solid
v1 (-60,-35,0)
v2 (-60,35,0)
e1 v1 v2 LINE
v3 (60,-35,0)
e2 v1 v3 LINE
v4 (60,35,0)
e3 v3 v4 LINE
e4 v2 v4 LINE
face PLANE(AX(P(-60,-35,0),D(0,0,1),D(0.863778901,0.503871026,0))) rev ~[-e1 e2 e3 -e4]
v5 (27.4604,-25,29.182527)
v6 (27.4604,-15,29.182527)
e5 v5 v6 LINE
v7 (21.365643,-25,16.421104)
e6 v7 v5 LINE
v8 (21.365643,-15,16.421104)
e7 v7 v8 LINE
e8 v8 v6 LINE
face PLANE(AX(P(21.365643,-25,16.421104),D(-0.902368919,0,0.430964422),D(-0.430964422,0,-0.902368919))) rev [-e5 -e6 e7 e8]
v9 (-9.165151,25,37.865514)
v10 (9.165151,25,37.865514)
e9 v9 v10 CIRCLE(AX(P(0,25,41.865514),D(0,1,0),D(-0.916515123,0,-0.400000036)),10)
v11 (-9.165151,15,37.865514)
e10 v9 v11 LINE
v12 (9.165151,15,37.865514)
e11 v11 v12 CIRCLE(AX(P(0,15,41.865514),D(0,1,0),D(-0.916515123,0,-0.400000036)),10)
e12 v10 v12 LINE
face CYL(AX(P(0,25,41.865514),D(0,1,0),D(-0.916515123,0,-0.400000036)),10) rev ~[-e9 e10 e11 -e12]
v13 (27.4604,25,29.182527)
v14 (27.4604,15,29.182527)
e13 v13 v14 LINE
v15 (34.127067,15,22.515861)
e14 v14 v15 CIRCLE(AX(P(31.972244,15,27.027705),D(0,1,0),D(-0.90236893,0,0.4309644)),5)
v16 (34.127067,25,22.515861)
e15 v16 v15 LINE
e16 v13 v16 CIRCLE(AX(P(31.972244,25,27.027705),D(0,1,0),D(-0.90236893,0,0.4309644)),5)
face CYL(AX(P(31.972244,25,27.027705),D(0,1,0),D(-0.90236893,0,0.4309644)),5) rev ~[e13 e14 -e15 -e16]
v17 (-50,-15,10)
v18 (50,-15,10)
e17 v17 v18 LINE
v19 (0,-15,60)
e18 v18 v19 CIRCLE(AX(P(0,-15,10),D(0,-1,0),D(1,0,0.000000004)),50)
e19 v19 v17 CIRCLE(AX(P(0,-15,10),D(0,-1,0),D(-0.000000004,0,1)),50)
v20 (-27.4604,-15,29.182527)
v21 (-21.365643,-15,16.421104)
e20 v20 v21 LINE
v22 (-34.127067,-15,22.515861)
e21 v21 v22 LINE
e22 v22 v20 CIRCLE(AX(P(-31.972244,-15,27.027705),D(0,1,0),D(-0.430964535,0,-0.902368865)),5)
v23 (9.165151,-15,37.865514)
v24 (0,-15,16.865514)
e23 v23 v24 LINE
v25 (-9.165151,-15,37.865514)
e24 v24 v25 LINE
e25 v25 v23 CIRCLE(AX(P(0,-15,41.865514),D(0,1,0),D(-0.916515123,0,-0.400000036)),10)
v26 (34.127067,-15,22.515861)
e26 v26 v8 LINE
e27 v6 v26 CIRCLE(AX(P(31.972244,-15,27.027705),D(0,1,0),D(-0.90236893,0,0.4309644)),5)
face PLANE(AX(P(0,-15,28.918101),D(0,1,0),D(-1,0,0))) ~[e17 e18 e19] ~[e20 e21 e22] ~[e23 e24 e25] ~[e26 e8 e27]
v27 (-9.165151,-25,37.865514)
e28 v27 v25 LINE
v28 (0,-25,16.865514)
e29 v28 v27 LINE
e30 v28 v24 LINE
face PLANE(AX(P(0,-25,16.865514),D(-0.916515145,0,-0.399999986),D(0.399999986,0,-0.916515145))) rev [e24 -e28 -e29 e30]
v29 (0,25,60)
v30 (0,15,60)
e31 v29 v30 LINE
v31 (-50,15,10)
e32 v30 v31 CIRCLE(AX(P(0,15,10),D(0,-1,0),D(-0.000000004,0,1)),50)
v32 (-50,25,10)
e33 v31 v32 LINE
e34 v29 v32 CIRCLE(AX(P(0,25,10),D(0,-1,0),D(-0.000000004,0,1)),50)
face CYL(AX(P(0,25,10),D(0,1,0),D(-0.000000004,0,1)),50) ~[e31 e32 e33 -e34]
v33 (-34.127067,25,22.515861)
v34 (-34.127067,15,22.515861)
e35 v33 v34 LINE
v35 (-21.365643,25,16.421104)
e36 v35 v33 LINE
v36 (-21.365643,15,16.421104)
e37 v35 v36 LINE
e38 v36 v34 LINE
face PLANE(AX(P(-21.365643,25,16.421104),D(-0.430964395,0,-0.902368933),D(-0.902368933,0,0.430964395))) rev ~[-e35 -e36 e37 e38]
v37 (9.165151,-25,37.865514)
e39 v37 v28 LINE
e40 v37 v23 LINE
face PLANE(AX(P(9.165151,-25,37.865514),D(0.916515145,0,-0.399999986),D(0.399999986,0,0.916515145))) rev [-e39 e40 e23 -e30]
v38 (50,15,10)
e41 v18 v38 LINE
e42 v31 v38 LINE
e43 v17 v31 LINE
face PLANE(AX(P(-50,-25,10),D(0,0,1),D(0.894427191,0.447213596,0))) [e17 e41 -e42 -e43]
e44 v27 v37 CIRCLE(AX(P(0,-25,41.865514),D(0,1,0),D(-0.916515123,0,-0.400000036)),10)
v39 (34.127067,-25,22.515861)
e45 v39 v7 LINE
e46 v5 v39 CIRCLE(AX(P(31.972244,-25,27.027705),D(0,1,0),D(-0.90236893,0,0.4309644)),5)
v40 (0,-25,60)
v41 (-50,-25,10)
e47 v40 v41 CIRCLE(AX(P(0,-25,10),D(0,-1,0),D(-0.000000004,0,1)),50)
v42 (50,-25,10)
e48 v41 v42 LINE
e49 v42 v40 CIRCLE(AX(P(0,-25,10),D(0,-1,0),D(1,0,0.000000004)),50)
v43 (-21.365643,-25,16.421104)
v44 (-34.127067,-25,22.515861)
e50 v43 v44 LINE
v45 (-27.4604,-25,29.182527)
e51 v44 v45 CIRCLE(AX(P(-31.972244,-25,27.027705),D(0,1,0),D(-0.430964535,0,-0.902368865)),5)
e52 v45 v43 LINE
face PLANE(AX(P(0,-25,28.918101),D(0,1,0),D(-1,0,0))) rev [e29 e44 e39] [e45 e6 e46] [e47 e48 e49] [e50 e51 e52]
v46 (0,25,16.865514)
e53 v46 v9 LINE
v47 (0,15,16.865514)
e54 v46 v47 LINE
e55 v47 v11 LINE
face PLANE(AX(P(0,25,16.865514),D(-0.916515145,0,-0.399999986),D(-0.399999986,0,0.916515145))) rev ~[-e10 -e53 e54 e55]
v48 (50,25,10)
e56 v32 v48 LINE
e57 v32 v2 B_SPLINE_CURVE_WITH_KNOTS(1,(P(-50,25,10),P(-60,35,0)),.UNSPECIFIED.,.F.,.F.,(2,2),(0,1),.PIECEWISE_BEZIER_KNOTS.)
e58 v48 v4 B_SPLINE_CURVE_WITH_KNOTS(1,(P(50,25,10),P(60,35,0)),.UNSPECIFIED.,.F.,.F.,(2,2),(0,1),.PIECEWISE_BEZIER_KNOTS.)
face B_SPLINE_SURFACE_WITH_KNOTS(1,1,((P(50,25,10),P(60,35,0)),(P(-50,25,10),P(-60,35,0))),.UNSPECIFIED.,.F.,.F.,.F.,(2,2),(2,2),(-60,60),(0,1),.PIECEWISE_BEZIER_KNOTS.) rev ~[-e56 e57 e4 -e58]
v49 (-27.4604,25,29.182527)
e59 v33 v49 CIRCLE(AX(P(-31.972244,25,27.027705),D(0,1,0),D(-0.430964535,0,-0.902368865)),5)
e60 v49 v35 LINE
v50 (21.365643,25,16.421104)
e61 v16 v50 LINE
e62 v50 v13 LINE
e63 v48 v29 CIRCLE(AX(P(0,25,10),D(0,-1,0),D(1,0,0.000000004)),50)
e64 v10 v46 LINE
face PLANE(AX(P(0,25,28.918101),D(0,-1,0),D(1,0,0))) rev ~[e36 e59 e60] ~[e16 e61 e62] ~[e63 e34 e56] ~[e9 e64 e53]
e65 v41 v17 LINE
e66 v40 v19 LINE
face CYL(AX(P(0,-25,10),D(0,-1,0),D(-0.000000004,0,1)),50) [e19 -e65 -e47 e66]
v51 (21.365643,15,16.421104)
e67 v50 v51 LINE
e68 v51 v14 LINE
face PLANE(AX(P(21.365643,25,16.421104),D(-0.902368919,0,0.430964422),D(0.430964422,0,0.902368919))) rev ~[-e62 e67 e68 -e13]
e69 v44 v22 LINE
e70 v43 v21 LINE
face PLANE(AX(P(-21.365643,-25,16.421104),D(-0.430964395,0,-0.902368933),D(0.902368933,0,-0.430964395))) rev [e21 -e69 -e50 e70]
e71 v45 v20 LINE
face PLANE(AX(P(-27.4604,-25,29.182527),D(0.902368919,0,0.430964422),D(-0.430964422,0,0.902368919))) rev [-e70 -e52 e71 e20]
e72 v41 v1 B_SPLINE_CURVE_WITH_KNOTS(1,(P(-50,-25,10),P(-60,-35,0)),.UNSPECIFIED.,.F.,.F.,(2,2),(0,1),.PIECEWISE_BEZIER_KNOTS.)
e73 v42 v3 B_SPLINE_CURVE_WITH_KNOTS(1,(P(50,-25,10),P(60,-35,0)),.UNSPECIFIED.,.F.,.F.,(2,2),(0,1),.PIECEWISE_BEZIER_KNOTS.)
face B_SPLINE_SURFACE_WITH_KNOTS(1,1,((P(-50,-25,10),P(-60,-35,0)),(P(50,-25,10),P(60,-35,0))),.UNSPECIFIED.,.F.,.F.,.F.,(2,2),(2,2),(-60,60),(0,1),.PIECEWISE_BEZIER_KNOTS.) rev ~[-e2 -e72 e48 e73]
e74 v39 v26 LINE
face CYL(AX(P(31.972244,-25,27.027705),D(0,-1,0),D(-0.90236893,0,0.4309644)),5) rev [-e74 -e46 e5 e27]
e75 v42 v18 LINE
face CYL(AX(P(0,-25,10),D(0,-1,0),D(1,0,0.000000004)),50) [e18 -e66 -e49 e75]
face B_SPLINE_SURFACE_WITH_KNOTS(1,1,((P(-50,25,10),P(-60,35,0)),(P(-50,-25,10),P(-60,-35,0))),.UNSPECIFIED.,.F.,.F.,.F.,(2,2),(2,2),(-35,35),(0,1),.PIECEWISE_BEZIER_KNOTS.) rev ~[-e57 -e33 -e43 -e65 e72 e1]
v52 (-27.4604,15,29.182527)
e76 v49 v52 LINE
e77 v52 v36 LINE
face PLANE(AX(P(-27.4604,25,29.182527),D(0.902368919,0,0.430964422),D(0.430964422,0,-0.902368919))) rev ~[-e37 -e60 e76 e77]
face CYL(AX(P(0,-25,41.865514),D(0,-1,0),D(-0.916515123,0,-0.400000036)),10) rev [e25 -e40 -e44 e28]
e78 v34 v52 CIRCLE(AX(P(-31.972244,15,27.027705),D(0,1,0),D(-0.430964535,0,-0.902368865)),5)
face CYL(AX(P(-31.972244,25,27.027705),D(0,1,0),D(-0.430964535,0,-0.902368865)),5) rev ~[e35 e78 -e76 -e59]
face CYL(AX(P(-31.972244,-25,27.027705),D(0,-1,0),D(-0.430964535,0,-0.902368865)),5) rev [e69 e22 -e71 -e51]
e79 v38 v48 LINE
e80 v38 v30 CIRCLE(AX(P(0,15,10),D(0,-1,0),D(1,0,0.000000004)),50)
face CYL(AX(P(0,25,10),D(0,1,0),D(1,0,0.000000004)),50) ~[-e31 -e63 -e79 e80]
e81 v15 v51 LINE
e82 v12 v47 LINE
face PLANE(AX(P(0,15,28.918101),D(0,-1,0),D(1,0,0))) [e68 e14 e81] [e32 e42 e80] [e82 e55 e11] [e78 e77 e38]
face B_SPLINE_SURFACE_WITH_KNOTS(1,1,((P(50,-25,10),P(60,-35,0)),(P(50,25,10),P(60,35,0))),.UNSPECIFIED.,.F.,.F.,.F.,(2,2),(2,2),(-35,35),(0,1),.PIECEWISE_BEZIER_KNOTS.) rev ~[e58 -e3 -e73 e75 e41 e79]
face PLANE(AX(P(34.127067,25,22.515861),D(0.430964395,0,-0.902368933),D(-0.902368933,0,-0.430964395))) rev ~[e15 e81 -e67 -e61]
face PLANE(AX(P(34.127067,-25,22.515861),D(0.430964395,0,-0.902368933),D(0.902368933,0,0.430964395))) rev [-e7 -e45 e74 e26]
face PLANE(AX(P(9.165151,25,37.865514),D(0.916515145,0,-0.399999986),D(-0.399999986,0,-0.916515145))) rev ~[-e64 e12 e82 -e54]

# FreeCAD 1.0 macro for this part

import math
import FreeCAD as App
import Part
import Sketcher
Q = App.Units.Quantity

doc = App.newDocument("Part")
params = doc.addObject("Spreadsheet::Sheet", "Params")
for row, (alias, value) in enumerate([
    ("sketch1_width", "100 mm"),
    ("sketch1_height", "50 mm"),
    ("sketch2_width", "120 mm"),
    ("sketch2_height", "70 mm"),
    ("sketch3_radius", "50 mm"),
    ("sketch3_radius2", "5 mm"),
    ("sketch3_radius3", "10 mm"),
    ("pad1_length", "10 mm"),
], start=1):
    params.set(f"A{row}", alias)
    params.set(f"B{row}", "=" + value)
    params.setAlias(f"B{row}", alias)

body = doc.addObject("PartDesign::Body", "Body")

sketch1 = body.newObject("Sketcher::SketchObject", "Sketch")
sketch1.AttachmentSupport = (doc.getObject("XY_Plane"), [""])
sketch1.MapMode = "FlatFace"
sketch1.AttachmentOffset = App.Placement(App.Vector(0, 0, 10), App.Rotation())
sketch1.addGeometry(Part.LineSegment(App.Vector(-50, 25, 0), App.Vector(-50, -25, 0)), False)
sketch1.addGeometry(Part.LineSegment(App.Vector(-50, -25, 0), App.Vector(50, -25, 0)), False)
sketch1.addGeometry(Part.LineSegment(App.Vector(50, -25, 0), App.Vector(50, 25, 0)), False)
sketch1.addGeometry(Part.LineSegment(App.Vector(50, 25, 0), App.Vector(-50, 25, 0)), False)
sketch1.addConstraint(Sketcher.Constraint("Coincident", 0, 2, 1, 1))
sketch1.addConstraint(Sketcher.Constraint("Coincident", 1, 2, 2, 1))
sketch1.addConstraint(Sketcher.Constraint("Coincident", 2, 2, 3, 1))
sketch1.addConstraint(Sketcher.Constraint("Coincident", 3, 2, 0, 1))
sketch1.addConstraint(Sketcher.Constraint("Vertical", 0))
sketch1.addConstraint(Sketcher.Constraint("Horizontal", 1))
sketch1.addConstraint(Sketcher.Constraint("Vertical", 2))
sketch1.addConstraint(Sketcher.Constraint("Horizontal", 3))
sketch1.addConstraint(Sketcher.Constraint("Symmetric", 0, 2, 2, 2, -1, 1))
sketch1.addConstraint(Sketcher.Constraint("DistanceX", 1, 1, 1, 2, Q("100 mm")))
sketch1.addConstraint(Sketcher.Constraint("DistanceY", 0, 2, 0, 1, Q("50 mm")))
sketch1.setExpression("Constraints[9]", "Params.sketch1_width")
sketch1.setExpression("Constraints[10]", "Params.sketch1_height")

sketch2 = body.newObject("Sketcher::SketchObject", "Sketch001")
sketch2.AttachmentSupport = (doc.getObject("XY_Plane"), [""])
sketch2.MapMode = "FlatFace"
sketch2.addGeometry(Part.LineSegment(App.Vector(-60, 35, 0), App.Vector(-60, -35, 0)), False)
sketch2.addGeometry(Part.LineSegment(App.Vector(-60, -35, 0), App.Vector(60, -35, 0)), False)
sketch2.addGeometry(Part.LineSegment(App.Vector(60, -35, 0), App.Vector(60, 35, 0)), False)
sketch2.addGeometry(Part.LineSegment(App.Vector(60, 35, 0), App.Vector(-60, 35, 0)), False)
sketch2.addConstraint(Sketcher.Constraint("Coincident", 0, 2, 1, 1))
sketch2.addConstraint(Sketcher.Constraint("Coincident", 1, 2, 2, 1))
sketch2.addConstraint(Sketcher.Constraint("Coincident", 2, 2, 3, 1))
sketch2.addConstraint(Sketcher.Constraint("Coincident", 3, 2, 0, 1))
sketch2.addConstraint(Sketcher.Constraint("Vertical", 0))
sketch2.addConstraint(Sketcher.Constraint("Horizontal", 1))
sketch2.addConstraint(Sketcher.Constraint("Vertical", 2))
sketch2.addConstraint(Sketcher.Constraint("Horizontal", 3))
sketch2.addConstraint(Sketcher.Constraint("Symmetric", 0, 2, 2, 2, -1, 1))
sketch2.addConstraint(Sketcher.Constraint("DistanceX", 1, 1, 1, 2, Q("120 mm")))
sketch2.addConstraint(Sketcher.Constraint("DistanceY", 0, 2, 0, 1, Q("70 mm")))
sketch2.setExpression("Constraints[9]", "Params.sketch2_width")
sketch2.setExpression("Constraints[10]", "Params.sketch2_height")

additiveloft = body.newObject("PartDesign::AdditiveLoft", "AdditiveLoft")
additiveloft.Profile = sketch1
additiveloft.Sections = [sketch2]

sketch3 = body.newObject("Sketcher::SketchObject", "Sketch002")
sketch3.AttachmentSupport = (doc.getObject("XZ_Plane"), [""])
sketch3.MapMode = "FlatFace"
sketch3.AttachmentOffset = App.Placement(App.Vector(0, 0, -25), App.Rotation())
sketch3.addGeometry(Part.LineSegment(App.Vector(-50, 10, 0), App.Vector(50, 10, 0)), False)
sketch3.addGeometry(Part.ArcOfCircle(Part.Circle(App.Vector(0, 10, 0), App.Vector(0, 0, 1), 50), math.radians(0), math.radians(90)), False)
sketch3.addGeometry(Part.ArcOfCircle(Part.Circle(App.Vector(0, 10, 0), App.Vector(0, 0, 1), 50), math.radians(90), math.radians(180)), False)
sketch3.addGeometry(Part.ArcOfCircle(Part.Circle(App.Vector(-32, 27, 0), App.Vector(0, 0, 1), 5), math.radians(26), math.radians(244)), False)
sketch3.addGeometry(Part.LineSegment(App.Vector(-27.5, 29.2, 0), App.Vector(-21.4, 16.4, 0)), False)
sketch3.addGeometry(Part.LineSegment(App.Vector(-21.4, 16.4, 0), App.Vector(-34.1, 22.5, 0)), False)
sketch3.addGeometry(Part.LineSegment(App.Vector(21.4, 16.4, 0), App.Vector(27.5, 29.2, 0)), False)
sketch3.addGeometry(Part.ArcOfCircle(Part.Circle(App.Vector(32, 27, 0), App.Vector(0, 0, 1), 5), math.radians(-64), math.radians(154)), False)
sketch3.addGeometry(Part.LineSegment(App.Vector(34.1, 22.5, 0), App.Vector(21.4, 16.4, 0)), False)
sketch3.addGeometry(Part.LineSegment(App.Vector(0, 16.9, 0), App.Vector(-9.2, 37.9, 0)), False)
sketch3.addGeometry(Part.ArcOfCircle(Part.Circle(App.Vector(0, 41.9, 0), App.Vector(0, 0, 1), 10), math.radians(-24), math.radians(204)), False)
sketch3.addGeometry(Part.LineSegment(App.Vector(9.2, 37.9, 0), App.Vector(0, 16.9, 0)), False)
sketch3.addConstraint(Sketcher.Constraint("Coincident", 0, 2, 1, 1))
sketch3.addConstraint(Sketcher.Constraint("Tangent", 1, 2, 2, 1))
sketch3.addConstraint(Sketcher.Constraint("Coincident", 2, 2, 0, 1))
sketch3.addConstraint(Sketcher.Constraint("Tangent", 3, 1, 4, 1))
sketch3.addConstraint(Sketcher.Constraint("Coincident", 4, 2, 5, 1))
sketch3.addConstraint(Sketcher.Constraint("Tangent", 5, 2, 3, 2))
sketch3.addConstraint(Sketcher.Constraint("Tangent", 6, 2, 7, 2))
sketch3.addConstraint(Sketcher.Constraint("Tangent", 7, 1, 8, 1))
sketch3.addConstraint(Sketcher.Constraint("Coincident", 8, 2, 6, 1))
sketch3.addConstraint(Sketcher.Constraint("Tangent", 9, 2, 10, 2))
sketch3.addConstraint(Sketcher.Constraint("Tangent", 10, 1, 11, 1))
sketch3.addConstraint(Sketcher.Constraint("Coincident", 11, 2, 9, 1))
sketch3.addConstraint(Sketcher.Constraint("Horizontal", 0))
sketch3.addConstraint(Sketcher.Constraint("Equal", 1, 2))
sketch3.addConstraint(Sketcher.Constraint("Equal", 3, 7))
sketch3.addConstraint(Sketcher.Constraint("Symmetric", 3, 3, 7, 3, -2))
sketch3.addConstraint(Sketcher.Constraint("Symmetric", 4, 2, 8, 2, -2))
sketch3.addConstraint(Sketcher.Constraint("Symmetric", 9, 2, 10, 1, -2))
sketch3.addConstraint(Sketcher.Constraint("PointOnObject", 1, 3, -2))
sketch3.addConstraint(Sketcher.Constraint("PointOnObject", 1, 2, -2))
sketch3.addConstraint(Sketcher.Constraint("Perpendicular", 5, 6))
sketch3.addConstraint(Sketcher.Constraint("Horizontal", 2, 3, 0, 2))
sketch3.addConstraint(Sketcher.Constraint("Radius", 1, Q("50 mm")))
sketch3.addConstraint(Sketcher.Constraint("Radius", 3, Q("5 mm")))
sketch3.addConstraint(Sketcher.Constraint("Radius", 10, Q("10 mm")))
sketch3.addConstraint(Sketcher.Constraint("DistanceY", -1, 1, 1, 3, Q("10 mm")))
sketch3.addConstraint(Sketcher.Constraint("DistanceY", 9, 2, 10, 3, Q("4 mm")))
sketch3.addConstraint(Sketcher.Constraint("DistanceX", 3, 1, -1, 1, Q("27.4604 mm")))
sketch3.addConstraint(Sketcher.Constraint("DistanceX", 3, 3, 4, 2, Q("10.606601 mm")))
sketch3.addConstraint(Sketcher.Constraint("DistanceY", -1, 1, 5, 2, Q("22.515861 mm")))
sketch3.addConstraint(Sketcher.Constraint("DistanceY", 3, 3, 10, 3, Q("14.837809 mm")))
sketch3.setExpression("Constraints[22]", "Params.sketch3_radius")
sketch3.setExpression("Constraints[23]", "Params.sketch3_radius2")
sketch3.setExpression("Constraints[24]", "Params.sketch3_radius3")
pad1 = body.newObject("PartDesign::Pad", "Pad")
pad1.Profile = sketch3
pad1.setExpression("Length", "Params.pad1_length")
body2 = doc.addObject("PartDesign::Body", "Body001")
doc.recompute()

body2.BaseFeature = body
doc.recompute()

mirroring = doc.addObject("Part::Mirroring", "Mirroring")
mirroring.Source = body
mirroring.Base = App.Vector(0, 0, 0)
mirroring.Normal = App.Vector(0, -1, 0)
body3 = doc.addObject("PartDesign::Body", "Body002")
body3.BaseFeature = mirroring
boolean = body2.newObject("PartDesign::Boolean", "Boolean")
boolean.Type = "Fuse"
boolean.addObjects([body3])
doc.recompute()
mirroring.Visibility = False

doc.recompute()
